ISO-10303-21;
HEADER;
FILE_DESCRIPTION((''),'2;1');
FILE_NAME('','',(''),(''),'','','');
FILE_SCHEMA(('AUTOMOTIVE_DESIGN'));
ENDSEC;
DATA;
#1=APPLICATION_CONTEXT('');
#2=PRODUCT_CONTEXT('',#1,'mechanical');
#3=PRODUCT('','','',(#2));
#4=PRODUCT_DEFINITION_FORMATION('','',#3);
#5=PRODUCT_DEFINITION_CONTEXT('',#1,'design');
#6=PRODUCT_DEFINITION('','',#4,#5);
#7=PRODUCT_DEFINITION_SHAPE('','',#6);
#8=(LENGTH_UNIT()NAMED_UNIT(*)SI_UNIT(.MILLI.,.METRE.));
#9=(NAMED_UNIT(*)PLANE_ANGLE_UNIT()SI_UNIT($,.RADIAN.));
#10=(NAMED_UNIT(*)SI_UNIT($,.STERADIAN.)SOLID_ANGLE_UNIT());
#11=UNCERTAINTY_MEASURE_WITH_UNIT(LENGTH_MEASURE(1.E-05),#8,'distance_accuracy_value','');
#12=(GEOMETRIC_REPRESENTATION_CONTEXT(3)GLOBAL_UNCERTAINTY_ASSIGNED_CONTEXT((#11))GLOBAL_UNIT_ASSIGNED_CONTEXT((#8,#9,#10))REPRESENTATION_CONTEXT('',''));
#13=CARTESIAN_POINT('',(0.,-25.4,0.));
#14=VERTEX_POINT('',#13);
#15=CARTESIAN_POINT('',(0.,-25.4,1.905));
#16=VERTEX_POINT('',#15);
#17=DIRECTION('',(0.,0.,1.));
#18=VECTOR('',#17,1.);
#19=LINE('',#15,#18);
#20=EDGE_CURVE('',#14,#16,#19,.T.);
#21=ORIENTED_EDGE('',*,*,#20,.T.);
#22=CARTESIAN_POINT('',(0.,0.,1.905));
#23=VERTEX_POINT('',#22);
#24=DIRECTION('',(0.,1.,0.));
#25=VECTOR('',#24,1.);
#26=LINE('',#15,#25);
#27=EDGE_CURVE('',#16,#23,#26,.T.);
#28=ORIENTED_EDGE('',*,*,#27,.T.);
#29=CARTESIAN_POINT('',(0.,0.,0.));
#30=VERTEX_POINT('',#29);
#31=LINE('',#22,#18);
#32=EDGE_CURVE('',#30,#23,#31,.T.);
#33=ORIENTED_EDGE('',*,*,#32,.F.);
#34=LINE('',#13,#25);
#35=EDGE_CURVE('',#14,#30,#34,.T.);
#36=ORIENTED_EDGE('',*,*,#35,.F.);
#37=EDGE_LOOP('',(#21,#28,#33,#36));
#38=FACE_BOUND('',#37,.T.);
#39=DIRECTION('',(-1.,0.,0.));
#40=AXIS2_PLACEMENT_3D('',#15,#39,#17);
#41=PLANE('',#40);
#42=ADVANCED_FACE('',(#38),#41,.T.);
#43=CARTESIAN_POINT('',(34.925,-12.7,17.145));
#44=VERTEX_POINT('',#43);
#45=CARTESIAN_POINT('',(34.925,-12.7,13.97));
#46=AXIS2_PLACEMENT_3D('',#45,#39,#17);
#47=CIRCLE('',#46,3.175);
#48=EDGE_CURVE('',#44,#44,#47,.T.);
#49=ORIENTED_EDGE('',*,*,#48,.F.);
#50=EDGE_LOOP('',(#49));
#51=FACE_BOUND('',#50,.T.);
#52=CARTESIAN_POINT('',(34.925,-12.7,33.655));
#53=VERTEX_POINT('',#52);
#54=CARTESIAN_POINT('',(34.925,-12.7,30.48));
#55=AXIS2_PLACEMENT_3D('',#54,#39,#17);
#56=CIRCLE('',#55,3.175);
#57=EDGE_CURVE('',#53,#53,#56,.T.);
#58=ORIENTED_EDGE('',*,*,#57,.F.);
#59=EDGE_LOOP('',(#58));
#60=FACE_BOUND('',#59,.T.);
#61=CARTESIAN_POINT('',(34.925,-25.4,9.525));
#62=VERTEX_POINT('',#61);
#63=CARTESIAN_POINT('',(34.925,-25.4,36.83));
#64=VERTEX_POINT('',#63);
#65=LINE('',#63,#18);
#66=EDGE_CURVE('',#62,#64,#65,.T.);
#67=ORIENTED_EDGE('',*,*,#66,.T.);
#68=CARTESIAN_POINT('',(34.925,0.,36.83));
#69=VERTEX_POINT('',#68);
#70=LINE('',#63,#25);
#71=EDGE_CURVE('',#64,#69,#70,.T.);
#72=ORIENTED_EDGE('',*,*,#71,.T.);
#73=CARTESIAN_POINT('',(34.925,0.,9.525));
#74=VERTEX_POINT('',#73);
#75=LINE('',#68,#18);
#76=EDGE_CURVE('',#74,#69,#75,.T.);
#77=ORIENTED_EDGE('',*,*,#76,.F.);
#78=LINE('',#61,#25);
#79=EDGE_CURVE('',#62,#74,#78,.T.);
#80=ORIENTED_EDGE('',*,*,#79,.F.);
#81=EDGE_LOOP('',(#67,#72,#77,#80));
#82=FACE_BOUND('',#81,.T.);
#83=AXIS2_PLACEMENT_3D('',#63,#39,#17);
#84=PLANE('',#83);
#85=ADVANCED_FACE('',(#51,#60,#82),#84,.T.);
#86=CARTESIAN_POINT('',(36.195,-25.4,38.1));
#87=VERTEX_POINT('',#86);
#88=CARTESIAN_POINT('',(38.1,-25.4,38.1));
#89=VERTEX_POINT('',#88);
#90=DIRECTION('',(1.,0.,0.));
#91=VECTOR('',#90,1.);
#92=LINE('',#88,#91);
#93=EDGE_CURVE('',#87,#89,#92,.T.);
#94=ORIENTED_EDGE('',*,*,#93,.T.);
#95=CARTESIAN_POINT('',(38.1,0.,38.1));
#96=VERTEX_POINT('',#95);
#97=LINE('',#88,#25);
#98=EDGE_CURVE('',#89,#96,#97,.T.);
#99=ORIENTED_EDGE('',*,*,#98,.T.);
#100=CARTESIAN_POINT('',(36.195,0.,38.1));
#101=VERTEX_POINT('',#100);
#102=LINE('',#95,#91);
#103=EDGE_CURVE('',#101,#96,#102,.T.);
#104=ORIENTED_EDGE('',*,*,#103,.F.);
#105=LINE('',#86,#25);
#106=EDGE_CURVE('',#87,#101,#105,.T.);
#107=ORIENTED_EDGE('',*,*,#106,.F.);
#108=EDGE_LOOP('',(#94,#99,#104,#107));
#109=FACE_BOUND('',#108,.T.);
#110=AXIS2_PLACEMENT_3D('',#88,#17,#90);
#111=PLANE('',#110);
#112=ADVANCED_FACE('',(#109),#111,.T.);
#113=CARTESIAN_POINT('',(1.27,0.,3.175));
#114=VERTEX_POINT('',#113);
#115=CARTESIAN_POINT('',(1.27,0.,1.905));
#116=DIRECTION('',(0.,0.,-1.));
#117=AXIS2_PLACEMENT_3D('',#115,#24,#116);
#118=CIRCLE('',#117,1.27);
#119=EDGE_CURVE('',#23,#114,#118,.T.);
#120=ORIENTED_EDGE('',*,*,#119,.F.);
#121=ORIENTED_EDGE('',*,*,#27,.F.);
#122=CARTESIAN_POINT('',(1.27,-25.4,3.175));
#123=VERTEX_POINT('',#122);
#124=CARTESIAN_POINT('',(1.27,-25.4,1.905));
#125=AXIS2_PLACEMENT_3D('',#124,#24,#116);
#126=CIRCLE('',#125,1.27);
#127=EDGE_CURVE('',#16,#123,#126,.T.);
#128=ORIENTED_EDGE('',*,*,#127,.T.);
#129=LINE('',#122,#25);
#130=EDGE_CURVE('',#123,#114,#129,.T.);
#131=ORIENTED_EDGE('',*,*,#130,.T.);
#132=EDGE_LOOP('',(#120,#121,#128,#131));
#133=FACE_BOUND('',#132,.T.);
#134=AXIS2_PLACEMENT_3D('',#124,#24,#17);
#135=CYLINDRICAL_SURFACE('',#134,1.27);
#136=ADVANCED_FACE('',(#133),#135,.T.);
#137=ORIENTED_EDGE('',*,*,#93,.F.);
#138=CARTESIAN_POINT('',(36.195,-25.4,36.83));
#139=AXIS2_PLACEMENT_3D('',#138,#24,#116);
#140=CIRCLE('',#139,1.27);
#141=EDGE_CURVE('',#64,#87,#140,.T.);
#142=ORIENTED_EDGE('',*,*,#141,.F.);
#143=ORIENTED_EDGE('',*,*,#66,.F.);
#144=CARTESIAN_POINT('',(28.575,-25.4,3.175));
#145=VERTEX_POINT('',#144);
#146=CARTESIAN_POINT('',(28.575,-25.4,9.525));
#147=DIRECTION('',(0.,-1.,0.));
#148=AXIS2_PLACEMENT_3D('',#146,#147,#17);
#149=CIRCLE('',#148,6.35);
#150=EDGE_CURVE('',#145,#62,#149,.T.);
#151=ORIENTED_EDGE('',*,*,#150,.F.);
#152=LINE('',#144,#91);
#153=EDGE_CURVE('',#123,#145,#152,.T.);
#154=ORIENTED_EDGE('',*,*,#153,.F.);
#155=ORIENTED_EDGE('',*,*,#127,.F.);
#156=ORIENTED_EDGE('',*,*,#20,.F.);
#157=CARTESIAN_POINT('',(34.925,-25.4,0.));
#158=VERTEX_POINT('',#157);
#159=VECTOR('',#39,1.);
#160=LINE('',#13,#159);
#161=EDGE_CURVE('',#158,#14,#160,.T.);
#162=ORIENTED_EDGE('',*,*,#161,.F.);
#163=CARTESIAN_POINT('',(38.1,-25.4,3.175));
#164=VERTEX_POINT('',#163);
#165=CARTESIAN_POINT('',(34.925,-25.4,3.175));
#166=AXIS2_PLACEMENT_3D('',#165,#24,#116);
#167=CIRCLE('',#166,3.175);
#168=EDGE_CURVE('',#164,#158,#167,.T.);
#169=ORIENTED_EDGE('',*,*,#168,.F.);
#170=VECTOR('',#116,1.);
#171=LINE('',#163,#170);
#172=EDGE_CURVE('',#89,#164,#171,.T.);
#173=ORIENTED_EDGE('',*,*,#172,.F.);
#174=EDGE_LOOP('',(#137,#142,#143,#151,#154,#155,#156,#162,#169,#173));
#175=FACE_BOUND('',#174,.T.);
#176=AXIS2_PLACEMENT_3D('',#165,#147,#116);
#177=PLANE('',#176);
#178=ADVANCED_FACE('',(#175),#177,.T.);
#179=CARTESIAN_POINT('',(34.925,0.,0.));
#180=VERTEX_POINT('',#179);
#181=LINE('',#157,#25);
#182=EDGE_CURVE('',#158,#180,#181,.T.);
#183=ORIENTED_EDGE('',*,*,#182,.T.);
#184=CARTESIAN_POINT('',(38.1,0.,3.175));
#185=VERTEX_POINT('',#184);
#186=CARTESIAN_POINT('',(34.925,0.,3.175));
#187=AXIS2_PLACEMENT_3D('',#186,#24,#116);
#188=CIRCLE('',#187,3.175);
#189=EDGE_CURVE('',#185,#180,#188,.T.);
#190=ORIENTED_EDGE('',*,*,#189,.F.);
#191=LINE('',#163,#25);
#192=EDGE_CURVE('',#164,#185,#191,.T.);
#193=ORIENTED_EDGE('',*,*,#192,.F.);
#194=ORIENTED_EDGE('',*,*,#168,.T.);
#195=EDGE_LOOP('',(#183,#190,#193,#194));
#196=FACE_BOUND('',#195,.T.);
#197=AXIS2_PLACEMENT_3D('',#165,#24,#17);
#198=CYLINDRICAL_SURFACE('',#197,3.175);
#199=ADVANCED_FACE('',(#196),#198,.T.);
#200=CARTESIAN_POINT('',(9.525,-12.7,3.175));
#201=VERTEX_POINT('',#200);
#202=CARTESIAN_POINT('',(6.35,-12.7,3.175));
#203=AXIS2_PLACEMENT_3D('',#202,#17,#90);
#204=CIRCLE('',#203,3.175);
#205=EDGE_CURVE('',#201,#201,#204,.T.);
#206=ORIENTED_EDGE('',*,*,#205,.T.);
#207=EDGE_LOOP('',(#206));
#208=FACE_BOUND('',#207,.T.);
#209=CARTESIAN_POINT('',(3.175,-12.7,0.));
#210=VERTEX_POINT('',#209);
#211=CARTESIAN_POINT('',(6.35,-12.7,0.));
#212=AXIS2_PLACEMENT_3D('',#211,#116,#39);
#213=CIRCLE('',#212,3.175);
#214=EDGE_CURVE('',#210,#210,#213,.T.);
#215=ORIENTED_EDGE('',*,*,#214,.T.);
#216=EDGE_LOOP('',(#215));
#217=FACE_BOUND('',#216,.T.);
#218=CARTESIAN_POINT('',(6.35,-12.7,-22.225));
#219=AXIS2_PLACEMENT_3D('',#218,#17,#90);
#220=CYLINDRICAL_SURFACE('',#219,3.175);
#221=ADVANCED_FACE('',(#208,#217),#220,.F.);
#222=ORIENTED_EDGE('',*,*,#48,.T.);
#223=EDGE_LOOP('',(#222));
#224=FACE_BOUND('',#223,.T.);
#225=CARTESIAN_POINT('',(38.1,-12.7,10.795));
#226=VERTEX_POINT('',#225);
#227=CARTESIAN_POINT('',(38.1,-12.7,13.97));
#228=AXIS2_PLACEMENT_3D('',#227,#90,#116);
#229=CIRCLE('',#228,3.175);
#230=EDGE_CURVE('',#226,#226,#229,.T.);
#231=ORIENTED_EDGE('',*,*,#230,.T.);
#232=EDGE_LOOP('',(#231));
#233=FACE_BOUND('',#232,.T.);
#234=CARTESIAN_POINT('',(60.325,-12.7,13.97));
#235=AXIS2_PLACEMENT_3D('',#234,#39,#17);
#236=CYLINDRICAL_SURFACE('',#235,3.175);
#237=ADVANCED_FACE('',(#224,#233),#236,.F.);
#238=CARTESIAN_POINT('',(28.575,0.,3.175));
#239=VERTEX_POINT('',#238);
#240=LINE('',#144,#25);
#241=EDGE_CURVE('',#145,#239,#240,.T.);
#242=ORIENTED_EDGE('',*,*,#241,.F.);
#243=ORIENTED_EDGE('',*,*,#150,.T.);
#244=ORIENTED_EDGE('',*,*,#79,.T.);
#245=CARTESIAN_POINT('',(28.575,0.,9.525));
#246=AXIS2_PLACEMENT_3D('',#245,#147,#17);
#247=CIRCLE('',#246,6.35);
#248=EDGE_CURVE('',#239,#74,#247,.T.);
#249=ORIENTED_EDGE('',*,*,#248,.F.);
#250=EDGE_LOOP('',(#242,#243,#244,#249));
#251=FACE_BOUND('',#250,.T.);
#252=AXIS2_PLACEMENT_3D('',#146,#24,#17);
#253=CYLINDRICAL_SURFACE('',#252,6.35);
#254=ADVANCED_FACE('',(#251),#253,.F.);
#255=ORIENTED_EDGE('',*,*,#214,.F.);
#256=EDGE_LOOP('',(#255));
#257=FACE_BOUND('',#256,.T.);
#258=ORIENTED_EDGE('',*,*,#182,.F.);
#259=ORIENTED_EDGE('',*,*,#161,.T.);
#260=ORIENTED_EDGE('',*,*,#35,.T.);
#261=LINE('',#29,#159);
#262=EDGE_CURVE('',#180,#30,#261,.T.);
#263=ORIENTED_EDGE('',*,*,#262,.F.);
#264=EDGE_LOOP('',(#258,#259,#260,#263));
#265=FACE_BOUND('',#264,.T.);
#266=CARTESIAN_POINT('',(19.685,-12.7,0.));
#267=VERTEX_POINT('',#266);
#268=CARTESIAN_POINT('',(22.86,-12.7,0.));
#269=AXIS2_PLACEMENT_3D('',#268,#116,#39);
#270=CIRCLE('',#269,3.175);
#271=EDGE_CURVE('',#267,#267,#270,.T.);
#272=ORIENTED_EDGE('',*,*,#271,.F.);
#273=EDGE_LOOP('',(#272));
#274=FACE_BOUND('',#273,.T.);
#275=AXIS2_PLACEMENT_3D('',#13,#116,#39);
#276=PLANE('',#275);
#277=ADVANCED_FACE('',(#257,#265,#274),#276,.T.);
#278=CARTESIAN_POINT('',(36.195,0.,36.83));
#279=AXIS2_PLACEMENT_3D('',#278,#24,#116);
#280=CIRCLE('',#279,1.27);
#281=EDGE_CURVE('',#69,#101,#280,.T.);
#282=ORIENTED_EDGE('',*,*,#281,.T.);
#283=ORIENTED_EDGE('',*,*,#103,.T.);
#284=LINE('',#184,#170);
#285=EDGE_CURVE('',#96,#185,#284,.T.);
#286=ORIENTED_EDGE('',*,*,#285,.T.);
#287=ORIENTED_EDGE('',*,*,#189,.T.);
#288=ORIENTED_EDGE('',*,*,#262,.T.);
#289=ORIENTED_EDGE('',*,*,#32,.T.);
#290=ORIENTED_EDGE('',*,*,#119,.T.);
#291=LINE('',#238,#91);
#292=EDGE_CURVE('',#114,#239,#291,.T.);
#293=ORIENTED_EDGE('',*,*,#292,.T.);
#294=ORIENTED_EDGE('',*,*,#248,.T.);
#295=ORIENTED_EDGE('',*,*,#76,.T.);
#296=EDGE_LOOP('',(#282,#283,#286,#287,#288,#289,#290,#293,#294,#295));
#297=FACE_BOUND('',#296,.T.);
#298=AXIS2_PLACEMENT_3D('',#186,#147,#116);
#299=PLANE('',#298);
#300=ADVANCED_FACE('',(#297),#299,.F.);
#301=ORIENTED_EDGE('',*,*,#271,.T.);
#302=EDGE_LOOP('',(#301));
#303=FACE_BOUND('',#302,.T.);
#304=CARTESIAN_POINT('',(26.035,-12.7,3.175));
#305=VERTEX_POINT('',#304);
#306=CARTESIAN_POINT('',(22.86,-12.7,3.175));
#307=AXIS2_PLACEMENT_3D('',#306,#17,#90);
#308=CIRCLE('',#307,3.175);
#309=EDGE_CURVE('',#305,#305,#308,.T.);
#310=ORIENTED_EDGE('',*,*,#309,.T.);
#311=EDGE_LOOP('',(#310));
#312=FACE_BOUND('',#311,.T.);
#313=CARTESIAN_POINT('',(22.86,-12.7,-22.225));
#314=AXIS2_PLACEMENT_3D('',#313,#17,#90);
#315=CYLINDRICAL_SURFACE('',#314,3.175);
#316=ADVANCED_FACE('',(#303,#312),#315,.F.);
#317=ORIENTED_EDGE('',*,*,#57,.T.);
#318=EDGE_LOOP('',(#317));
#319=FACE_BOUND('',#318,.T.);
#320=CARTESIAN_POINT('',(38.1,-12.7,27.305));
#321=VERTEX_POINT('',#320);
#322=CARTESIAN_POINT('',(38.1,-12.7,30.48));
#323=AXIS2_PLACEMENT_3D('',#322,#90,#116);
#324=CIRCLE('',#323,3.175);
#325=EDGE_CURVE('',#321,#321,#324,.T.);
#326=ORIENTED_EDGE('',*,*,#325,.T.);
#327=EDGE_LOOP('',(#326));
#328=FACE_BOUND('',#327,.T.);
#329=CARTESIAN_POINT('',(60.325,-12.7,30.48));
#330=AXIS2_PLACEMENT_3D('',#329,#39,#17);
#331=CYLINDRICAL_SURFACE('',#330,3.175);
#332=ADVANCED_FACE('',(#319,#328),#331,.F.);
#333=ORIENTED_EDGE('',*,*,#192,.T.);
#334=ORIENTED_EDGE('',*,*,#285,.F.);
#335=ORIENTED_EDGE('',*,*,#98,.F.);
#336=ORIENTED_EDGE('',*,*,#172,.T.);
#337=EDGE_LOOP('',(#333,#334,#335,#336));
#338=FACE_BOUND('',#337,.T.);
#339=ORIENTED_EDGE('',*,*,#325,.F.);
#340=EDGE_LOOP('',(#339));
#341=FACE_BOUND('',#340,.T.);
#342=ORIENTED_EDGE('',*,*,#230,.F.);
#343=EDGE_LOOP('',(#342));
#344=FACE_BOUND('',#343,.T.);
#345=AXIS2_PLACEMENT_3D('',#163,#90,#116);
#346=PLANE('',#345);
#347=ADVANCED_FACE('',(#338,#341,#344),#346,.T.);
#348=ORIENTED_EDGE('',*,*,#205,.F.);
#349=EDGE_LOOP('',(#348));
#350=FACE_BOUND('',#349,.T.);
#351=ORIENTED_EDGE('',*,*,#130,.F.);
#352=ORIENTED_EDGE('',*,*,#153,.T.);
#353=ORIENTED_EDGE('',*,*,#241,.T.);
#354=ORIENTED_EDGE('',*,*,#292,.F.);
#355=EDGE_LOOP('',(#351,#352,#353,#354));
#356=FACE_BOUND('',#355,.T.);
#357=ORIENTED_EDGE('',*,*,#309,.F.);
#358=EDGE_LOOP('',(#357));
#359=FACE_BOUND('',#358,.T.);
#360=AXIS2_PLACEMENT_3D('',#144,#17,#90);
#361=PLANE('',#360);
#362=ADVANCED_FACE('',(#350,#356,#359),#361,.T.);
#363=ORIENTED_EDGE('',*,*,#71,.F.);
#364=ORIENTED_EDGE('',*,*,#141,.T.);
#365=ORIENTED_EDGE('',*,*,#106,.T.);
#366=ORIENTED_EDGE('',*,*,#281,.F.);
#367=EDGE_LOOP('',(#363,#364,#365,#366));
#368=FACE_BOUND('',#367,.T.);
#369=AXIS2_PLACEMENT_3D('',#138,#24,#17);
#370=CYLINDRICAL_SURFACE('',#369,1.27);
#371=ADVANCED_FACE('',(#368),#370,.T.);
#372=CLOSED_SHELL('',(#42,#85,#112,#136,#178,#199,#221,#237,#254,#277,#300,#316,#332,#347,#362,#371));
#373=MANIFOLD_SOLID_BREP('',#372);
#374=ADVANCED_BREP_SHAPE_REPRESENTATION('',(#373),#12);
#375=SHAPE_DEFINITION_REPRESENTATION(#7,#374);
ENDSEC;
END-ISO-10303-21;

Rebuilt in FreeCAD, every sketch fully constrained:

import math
import FreeCAD as App
import Part
import Sketcher

V = App.Vector
Q = App.Units.Quantity

doc = App.newDocument("Part")
body = doc.addObject("PartDesign::Body", "Body")

sketch1 = doc.addObject("Sketcher::SketchObject", "Sketch")
body.addObject(sketch1)
sketch1.AttachmentSupport = (doc.XZ_Plane, [""])
sketch1.MapMode = "FlatFace"
sketch1.addGeometry([
    Part.LineSegment(V(34.9, 0, 0), V(0, 0, 0)),
    Part.LineSegment(V(0, 0, 0), V(0, 1.9, 0)),
    Part.ArcOfCircle(Part.Circle(V(1.3, 1.9, 0), V(0, 0, 1), 1.3), math.radians(90), math.radians(180)),
    Part.LineSegment(V(1.3, 3.2, 0), V(28.6, 3.2, 0)),
    Part.ArcOfCircle(Part.Circle(V(28.6, 9.5, 0), V(0, 0, 1), 6.3), math.radians(-90), math.radians(0)),
    Part.LineSegment(V(34.9, 9.5, 0), V(34.9, 36.8, 0)),
    Part.ArcOfCircle(Part.Circle(V(36.2, 36.8, 0), V(0, 0, 1), 1.3), math.radians(90), math.radians(180)),
    Part.LineSegment(V(36.2, 38.1, 0), V(38.1, 38.1, 0)),
    Part.LineSegment(V(38.1, 38.1, 0), V(38.1, 3.2, 0)),
    Part.ArcOfCircle(Part.Circle(V(34.9, 3.2, 0), V(0, 0, 1), 3.2), math.radians(-90), math.radians(0)),
], False)
sketch1.addConstraint([
    Sketcher.Constraint("Coincident", 0, 2, 1, 1),
    Sketcher.Constraint("Tangent", 1, 2, 2, 2),
    Sketcher.Constraint("Tangent", 2, 1, 3, 1),
    Sketcher.Constraint("Tangent", 3, 2, 4, 1),
    Sketcher.Constraint("Tangent", 4, 2, 5, 1),
    Sketcher.Constraint("Tangent", 5, 2, 6, 2),
    Sketcher.Constraint("Tangent", 6, 1, 7, 1),
    Sketcher.Constraint("Coincident", 7, 2, 8, 1),
    Sketcher.Constraint("Tangent", 8, 2, 9, 2),
    Sketcher.Constraint("Tangent", 9, 1, 0, 1),
    Sketcher.Constraint("Horizontal", 0),
    Sketcher.Constraint("Vertical", 1),
    Sketcher.Constraint("Horizontal", 3),
    Sketcher.Constraint("Vertical", 5),
    Sketcher.Constraint("Horizontal", 7),
    Sketcher.Constraint("Vertical", 8),
    Sketcher.Constraint("Coincident", 0, 2, -1, 1),
    Sketcher.Constraint("Equal", 2, 6),
    Sketcher.Constraint("Horizontal", 9, 3, 2, 1),
    Sketcher.Constraint("Vertical", 9, 3, 4, 2),
    Sketcher.Constraint("Equal", 3, 5),
    Sketcher.Constraint("Radius", 2, Q("0.05 in")),
    Sketcher.Constraint("Radius", 4, Q("0.25 in")),
    Sketcher.Constraint("Radius", 9, Q("0.125 in")),
    Sketcher.Constraint("DistanceY", -1, 1, 6, 1, Q("1.5 in")),
])
pad1 = doc.addObject("PartDesign::Pad", "Pad")
body.addObject(pad1)
pad1.Profile = sketch1
pad1.Length = Q("1 in")

sketch2 = doc.addObject("Sketcher::SketchObject", "Sketch001")
body.addObject(sketch2)
sketch2.AttachmentSupport = (doc.YZ_Plane, [""])
sketch2.MapMode = "FlatFace"
sketch2.AttachmentOffset = App.Placement(V(0, 0, 1.375 * 25.4), App.Rotation())
sketch2.addGeometry([
    Part.Circle(V(-12.7, 30.5, 0), V(0, 0, 1), 3.2),
    Part.Circle(V(-12.7, 14, 0), V(0, 0, 1), 3.2),
], False)
sketch2.addConstraint([
    Sketcher.Constraint("Equal", 0, 1),
    Sketcher.Constraint("Vertical", 0, 3, 1, 3),
    Sketcher.Constraint("Diameter", 0, Q("0.25 in")),
    Sketcher.Constraint("DistanceX", 0, 3, -1, 1, Q("0.5 in")),
    Sketcher.Constraint("DistanceY", -1, 1, 0, 3, Q("1.2 in")),
    Sketcher.Constraint("DistanceY", -1, 1, 1, 3, Q("0.55 in")),
])
pocket1 = doc.addObject("PartDesign::Pocket", "Pocket")
body.addObject(pocket1)
pocket1.Profile = sketch2
pocket1.Length = Q("1 in")
pocket1.Reversed = True

sketch3 = doc.addObject("Sketcher::SketchObject", "Sketch002")
body.addObject(sketch3)
sketch3.AttachmentSupport = (doc.XY_Plane, [""])
sketch3.MapMode = "FlatFace"
sketch3.AttachmentOffset = App.Placement(V(0, 0, 0.125 * 25.4), App.Rotation())
sketch3.addGeometry([
    Part.Circle(V(6.3, -12.7, 0), V(0, 0, 1), 3.2),
    Part.Circle(V(22.9, -12.7, 0), V(0, 0, 1), 3.2),
], False)
sketch3.addConstraint([
    Sketcher.Constraint("Equal", 0, 1),
    Sketcher.Constraint("Horizontal", 0, 3, 1, 3),
    Sketcher.Constraint("Diameter", 0, Q("0.25 in")),
    Sketcher.Constraint("DistanceY", 0, 3, -1, 1, Q("0.5 in")),
    Sketcher.Constraint("DistanceX", -1, 1, 1, 3, Q("0.9 in")),
    Sketcher.Constraint("DistanceX", -1, 1, 0, 3, Q("0.25 in")),
])
pocket2 = doc.addObject("PartDesign::Pocket", "Pocket001")
body.addObject(pocket2)
pocket2.Profile = sketch3
pocket2.Length = Q("1 in")

doc.recompute()
